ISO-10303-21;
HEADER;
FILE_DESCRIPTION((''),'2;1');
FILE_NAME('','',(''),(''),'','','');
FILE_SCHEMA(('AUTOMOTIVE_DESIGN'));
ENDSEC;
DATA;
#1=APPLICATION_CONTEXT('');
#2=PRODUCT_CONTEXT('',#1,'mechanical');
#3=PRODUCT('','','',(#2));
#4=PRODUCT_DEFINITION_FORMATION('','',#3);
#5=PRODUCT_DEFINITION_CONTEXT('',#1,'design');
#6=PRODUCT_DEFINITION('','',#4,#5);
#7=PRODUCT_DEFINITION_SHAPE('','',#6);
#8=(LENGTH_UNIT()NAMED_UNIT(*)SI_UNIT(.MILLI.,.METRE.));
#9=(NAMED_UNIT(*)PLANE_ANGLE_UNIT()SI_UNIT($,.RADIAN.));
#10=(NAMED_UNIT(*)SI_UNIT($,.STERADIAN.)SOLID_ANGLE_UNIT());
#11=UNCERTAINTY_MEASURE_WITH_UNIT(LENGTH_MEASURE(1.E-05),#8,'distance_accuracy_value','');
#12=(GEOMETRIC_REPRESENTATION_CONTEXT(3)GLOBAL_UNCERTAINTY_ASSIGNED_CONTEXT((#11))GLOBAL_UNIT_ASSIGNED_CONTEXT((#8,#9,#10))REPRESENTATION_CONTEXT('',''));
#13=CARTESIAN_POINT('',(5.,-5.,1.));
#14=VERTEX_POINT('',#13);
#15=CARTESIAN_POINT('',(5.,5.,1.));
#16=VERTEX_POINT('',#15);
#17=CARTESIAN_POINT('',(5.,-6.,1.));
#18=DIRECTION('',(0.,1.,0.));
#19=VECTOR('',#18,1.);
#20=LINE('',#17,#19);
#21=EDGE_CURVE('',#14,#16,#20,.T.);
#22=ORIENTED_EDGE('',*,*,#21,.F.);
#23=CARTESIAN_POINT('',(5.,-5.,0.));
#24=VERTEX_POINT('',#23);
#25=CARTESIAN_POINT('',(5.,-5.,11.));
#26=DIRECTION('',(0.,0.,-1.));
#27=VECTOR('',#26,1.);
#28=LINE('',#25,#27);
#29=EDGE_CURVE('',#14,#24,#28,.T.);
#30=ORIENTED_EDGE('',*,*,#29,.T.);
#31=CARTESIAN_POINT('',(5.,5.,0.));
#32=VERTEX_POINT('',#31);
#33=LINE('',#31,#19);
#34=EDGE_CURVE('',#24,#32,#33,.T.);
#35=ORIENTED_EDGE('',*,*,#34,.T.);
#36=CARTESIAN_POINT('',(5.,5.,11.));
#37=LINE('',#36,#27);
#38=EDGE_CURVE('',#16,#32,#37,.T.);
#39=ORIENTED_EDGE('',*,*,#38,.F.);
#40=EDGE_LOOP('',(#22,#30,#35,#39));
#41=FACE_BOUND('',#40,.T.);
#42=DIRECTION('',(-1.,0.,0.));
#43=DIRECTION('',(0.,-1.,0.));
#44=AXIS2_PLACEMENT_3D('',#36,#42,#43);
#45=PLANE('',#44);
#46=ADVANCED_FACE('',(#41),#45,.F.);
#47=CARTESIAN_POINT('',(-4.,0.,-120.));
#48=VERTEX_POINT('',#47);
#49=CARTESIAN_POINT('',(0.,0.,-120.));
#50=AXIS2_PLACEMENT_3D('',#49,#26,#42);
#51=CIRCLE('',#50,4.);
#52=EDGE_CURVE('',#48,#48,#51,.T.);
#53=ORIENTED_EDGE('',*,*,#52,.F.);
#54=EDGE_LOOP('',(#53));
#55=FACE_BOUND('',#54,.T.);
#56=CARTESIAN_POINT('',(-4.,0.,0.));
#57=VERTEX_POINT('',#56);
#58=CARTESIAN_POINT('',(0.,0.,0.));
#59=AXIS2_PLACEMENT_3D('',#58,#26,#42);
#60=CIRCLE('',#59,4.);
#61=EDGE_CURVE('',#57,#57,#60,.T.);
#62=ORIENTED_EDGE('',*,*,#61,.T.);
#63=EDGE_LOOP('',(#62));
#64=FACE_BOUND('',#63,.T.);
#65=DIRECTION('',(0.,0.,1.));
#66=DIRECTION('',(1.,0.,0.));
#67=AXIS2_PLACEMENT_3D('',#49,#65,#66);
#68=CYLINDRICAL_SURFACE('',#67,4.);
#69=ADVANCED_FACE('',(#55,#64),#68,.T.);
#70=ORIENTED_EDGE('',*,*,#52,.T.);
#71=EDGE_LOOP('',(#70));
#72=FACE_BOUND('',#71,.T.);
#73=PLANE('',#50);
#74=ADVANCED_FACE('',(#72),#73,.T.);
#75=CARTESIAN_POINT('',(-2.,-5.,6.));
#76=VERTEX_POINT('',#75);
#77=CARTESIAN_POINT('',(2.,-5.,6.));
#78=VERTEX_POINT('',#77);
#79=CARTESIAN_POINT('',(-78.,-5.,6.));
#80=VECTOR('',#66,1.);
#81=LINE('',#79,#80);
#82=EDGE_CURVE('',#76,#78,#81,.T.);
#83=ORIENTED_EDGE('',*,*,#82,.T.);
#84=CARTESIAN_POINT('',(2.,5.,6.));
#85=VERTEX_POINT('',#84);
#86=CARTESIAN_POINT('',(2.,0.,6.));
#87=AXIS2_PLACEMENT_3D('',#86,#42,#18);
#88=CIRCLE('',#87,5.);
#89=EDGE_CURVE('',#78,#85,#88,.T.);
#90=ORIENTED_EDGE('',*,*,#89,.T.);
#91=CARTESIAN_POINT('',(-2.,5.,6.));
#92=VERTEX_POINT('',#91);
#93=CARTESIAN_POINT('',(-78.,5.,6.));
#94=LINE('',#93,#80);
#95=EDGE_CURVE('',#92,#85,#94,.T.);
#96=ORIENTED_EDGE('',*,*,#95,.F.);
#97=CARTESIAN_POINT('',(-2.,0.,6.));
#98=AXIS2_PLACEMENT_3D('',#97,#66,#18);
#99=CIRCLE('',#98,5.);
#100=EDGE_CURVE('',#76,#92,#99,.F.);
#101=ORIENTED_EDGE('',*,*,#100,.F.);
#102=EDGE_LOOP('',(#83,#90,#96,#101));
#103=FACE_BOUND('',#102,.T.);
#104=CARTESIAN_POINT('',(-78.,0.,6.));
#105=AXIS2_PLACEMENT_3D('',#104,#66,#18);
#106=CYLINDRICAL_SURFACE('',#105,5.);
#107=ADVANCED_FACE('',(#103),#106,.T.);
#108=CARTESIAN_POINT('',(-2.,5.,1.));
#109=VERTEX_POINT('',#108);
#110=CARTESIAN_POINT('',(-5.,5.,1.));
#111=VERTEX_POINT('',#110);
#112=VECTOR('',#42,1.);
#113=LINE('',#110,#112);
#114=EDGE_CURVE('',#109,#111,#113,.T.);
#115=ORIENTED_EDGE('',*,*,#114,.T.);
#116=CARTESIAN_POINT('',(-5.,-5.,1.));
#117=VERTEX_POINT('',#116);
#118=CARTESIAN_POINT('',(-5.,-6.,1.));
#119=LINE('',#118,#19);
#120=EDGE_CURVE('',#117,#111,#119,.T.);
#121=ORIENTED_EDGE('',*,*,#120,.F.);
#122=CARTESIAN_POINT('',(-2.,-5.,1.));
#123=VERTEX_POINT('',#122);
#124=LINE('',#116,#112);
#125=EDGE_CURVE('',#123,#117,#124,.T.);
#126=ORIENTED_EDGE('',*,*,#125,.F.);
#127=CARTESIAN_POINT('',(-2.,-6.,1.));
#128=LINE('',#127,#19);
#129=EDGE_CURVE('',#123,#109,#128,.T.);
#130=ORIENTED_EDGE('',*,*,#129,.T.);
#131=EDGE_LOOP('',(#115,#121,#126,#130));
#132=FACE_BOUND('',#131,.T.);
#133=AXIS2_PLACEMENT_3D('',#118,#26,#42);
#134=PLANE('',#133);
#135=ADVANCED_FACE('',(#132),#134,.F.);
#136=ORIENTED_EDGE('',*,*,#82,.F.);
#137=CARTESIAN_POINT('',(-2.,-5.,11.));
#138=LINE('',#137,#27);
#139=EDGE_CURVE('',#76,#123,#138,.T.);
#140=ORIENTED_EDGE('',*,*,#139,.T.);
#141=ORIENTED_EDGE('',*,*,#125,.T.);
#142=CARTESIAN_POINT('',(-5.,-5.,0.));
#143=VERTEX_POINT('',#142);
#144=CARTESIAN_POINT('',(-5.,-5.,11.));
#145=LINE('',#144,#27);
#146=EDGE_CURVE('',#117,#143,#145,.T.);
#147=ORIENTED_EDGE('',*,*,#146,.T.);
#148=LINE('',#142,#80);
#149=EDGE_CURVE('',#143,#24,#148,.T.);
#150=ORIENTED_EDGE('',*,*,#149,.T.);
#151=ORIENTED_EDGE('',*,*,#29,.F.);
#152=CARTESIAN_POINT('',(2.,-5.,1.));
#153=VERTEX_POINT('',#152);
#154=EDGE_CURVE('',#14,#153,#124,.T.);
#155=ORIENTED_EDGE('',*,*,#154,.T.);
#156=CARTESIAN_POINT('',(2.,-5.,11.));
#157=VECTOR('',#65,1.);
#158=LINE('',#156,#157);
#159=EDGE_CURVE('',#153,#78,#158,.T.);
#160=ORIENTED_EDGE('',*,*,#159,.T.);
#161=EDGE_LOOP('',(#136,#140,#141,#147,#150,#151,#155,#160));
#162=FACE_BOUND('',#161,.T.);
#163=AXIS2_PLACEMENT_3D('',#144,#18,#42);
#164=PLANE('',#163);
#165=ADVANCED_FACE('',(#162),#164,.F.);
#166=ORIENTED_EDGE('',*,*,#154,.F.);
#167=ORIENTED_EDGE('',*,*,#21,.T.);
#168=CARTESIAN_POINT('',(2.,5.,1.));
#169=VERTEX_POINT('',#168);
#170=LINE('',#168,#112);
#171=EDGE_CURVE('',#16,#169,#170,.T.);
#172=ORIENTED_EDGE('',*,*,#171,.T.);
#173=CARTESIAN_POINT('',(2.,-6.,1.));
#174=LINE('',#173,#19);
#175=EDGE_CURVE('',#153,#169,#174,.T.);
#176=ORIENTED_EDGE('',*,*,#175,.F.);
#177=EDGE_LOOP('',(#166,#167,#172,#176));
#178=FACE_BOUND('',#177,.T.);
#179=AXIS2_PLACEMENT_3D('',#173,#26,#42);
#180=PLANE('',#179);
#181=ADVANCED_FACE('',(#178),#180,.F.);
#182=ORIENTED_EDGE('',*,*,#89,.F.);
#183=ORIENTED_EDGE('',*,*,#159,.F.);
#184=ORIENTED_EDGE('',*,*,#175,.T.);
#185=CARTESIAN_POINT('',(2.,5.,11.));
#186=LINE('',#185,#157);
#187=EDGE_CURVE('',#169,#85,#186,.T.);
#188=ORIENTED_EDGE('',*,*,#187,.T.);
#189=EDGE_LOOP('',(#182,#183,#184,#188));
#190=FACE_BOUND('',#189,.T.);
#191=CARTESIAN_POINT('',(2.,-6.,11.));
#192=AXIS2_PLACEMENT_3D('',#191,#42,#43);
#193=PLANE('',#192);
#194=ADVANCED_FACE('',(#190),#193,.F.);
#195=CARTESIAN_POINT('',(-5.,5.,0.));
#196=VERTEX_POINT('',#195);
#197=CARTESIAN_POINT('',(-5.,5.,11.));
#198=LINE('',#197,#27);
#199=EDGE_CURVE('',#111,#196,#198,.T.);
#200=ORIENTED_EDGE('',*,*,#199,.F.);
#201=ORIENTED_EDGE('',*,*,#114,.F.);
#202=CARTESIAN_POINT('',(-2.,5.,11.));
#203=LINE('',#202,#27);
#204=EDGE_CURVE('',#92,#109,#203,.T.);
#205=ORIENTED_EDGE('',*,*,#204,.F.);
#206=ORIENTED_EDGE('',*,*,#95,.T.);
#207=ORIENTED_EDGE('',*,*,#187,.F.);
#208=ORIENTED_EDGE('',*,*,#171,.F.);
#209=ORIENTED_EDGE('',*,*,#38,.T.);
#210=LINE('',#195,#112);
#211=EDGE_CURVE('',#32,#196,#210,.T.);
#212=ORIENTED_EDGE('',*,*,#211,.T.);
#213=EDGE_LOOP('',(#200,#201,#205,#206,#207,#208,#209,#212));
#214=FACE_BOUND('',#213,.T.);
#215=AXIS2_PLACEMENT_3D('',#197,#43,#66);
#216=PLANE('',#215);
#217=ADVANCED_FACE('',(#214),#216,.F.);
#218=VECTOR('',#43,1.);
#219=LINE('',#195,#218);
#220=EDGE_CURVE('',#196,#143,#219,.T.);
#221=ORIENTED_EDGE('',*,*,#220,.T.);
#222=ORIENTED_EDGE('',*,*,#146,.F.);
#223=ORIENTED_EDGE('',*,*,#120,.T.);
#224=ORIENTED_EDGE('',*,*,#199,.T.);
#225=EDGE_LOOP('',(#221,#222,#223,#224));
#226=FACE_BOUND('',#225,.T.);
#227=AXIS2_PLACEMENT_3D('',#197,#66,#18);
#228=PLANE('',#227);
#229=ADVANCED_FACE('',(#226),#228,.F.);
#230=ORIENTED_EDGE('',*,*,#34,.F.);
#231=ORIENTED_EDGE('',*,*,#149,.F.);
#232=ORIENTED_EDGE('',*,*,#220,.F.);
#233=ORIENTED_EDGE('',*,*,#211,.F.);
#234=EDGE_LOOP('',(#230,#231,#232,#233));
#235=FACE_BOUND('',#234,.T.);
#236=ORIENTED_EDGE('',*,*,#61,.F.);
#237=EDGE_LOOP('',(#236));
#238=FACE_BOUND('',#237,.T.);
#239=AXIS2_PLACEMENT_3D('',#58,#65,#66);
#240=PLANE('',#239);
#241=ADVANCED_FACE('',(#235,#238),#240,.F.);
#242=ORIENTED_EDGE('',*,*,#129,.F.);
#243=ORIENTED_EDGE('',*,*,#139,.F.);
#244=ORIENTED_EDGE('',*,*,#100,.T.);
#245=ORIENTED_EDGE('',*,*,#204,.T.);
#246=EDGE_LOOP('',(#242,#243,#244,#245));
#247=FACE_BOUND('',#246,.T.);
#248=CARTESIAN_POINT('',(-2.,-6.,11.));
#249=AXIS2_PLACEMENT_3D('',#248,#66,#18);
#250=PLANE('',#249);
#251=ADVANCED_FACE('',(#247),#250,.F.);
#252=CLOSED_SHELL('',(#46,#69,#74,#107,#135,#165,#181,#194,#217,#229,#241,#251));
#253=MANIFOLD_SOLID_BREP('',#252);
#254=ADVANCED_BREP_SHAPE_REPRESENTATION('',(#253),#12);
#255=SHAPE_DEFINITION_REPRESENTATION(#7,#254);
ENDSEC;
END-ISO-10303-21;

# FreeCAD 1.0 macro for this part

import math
import FreeCAD as App
import Part
import Sketcher

V = App.Vector
Q = App.Units.Quantity


def add_polygon(sketch, points):
    """Adds a closed chain of lines whose ends are joined by coincident constraints."""
    first, n = sketch.GeometryCount, len(points)
    for a, b in zip(points, points[1:] + points[:1]):
        sketch.addGeometry(Part.LineSegment(App.Vector(*a, 0), App.Vector(*b, 0)), False)
    for i in range(n):
        sketch.addConstraint(Sketcher.Constraint("Coincident", first + i, 2, first + (i + 1) % n, 1))

doc = App.newDocument("Part")
body = doc.addObject("PartDesign::Body", "Body")

sketch1 = body.newObject("Sketcher::SketchObject", "Sketch")
sketch1.AttachmentSupport = (doc.getObject("XY_Plane"), [""])
sketch1.MapMode = "FlatFace"
add_polygon(sketch1, [(-5, 5), (-5, -5), (5, -5), (5, 5)])
sketch1.addConstraint([
    Sketcher.Constraint("Vertical", 0),
    Sketcher.Constraint("Horizontal", 1),
    Sketcher.Constraint("Vertical", 2),
    Sketcher.Constraint("Horizontal", 3),
    Sketcher.Constraint("Symmetric", 0, 2, 2, 2, -1, 1),
    Sketcher.Constraint("Equal", 3, 0),
    Sketcher.Constraint("DistanceX", 1, 1, 1, 2, Q("10 mm")),
])
pad1 = body.newObject("PartDesign::Pad", "Pad")
pad1.Profile = sketch1
pad1.Length = 11

sketch2 = body.newObject("Sketcher::SketchObject", "Sketch001")
sketch2.AttachmentSupport = (doc.getObject("XZ_Plane"), [""])
sketch2.MapMode = "FlatFace"
sketch2.AttachmentOffset = App.Placement(V(0, 0, -5), App.Rotation())
add_polygon(sketch2, [(-5, 1), (-5, 11), (-2, 11), (-2, 1)])
add_polygon(sketch2, [(2, 1), (2, 11), (5, 11), (5, 1)])
sketch2.addConstraint([
    Sketcher.Constraint("Vertical", 0),
    Sketcher.Constraint("Horizontal", 1),
    Sketcher.Constraint("Vertical", 2),
    Sketcher.Constraint("Horizontal", 3),
    Sketcher.Constraint("Vertical", 4),
    Sketcher.Constraint("Horizontal", 5),
    Sketcher.Constraint("Vertical", 6),
    Sketcher.Constraint("Horizontal", 7),
    Sketcher.Constraint("Symmetric", 1, 2, 4, 2, -2),
    Sketcher.Constraint("Symmetric", 3, 2, 6, 2, -2),
    Sketcher.Constraint("DistanceX", 1, 1, 1, 2, Q("3 mm")),
    Sketcher.Constraint("DistanceY", 0, 1, 0, 2, Q("10 mm")),
    Sketcher.Constraint("DistanceX", 0, 2, -1, 1, Q("5 mm")),
    Sketcher.Constraint("DistanceY", -1, 1, 0, 2, Q("11 mm")),
])
pocket1 = body.newObject("PartDesign::Pocket", "Pocket")
pocket1.Profile = sketch2
pocket1.Length = 11
pocket1.Reversed = True

sketch3 = body.newObject("Sketcher::SketchObject", "Sketch002")
sketch3.AttachmentSupport = (doc.getObject("XY_Plane"), [""])
sketch3.MapMode = "FlatFace"
sketch3.addGeometry(Part.Circle(V(0, 0, 0), V(0, 0, 1), 4), False)
sketch3.addConstraint([
    Sketcher.Constraint("Coincident", 0, 3, -1, 1),
    Sketcher.Constraint("Diameter", 0, Q("8 mm")),
])
pad2 = body.newObject("PartDesign::Pad", "Pad001")
pad2.Profile = sketch3
pad2.Length = 120
pad2.Reversed = True

sketch4 = body.newObject("Sketcher::SketchObject", "Sketch003")
sketch4.AttachmentSupport = (doc.getObject("YZ_Plane"), [""])
sketch4.MapMode = "FlatFace"
sketch4.AttachmentOffset = App.Placement(V(0, 0, 2), App.Rotation())
sketch4.addGeometry([
    Part.LineSegment(V(5, 6, 0), V(5, 12, 0)),
    Part.LineSegment(V(5, 12, 0), V(-5, 12, 0)),
    Part.LineSegment(V(-5, 12, 0), V(-5, 6, 0)),
    Part.ArcOfCircle(Part.Circle(V(0, 6, 0), V(0, 0, 1), 5), math.radians(0), math.radians(180)),
], False)
sketch4.addConstraint([
    Sketcher.Constraint("Coincident", 0, 2, 1, 1),
    Sketcher.Constraint("Coincident", 1, 2, 2, 1),
    Sketcher.Constraint("Tangent", 2, 2, 3, 2),
    Sketcher.Constraint("Tangent", 3, 1, 0, 1),
    Sketcher.Constraint("Vertical", 0),
    Sketcher.Constraint("Horizontal", 1),
    Sketcher.Constraint("Vertical", 2),
    Sketcher.Constraint("PointOnObject", 3, 3, -2),
    Sketcher.Constraint("Radius", 3, Q("5 mm")),
    Sketcher.Constraint("DistanceY", -1, 1, 3, 3, Q("6 mm")),
    Sketcher.Constraint("DistanceY", 0, 1, 0, 2, Q("6.2957 mm")),
])
pocket2 = body.newObject("PartDesign::Pocket", "Pocket001")
pocket2.Profile = sketch4
pocket2.Length = 80

doc.recompute()
